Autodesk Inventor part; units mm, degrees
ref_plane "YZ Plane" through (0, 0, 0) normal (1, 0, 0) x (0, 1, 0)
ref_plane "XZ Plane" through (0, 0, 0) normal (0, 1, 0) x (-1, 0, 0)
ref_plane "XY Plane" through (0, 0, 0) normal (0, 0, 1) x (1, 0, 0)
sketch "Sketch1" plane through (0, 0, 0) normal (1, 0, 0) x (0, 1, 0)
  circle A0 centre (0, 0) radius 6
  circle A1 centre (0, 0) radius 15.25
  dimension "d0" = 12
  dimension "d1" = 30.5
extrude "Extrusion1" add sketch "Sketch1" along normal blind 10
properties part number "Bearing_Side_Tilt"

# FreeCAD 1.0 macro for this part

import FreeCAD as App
import Part
import Sketcher
from FreeCAD import Vector

doc = App.newDocument("Part")
params = doc.addObject("Spreadsheet::Sheet", "Params")
for row, (alias, value) in enumerate([
    ("sketch1_diameter", "12 mm"),
    ("sketch1_diameter2", "30.5 mm"),
    ("pad1_length", "10 mm"),
], start=1):
    params.set(f"A{row}", alias)
    params.set(f"B{row}", "=" + value)
    params.setAlias(f"B{row}", alias)

body = doc.addObject("PartDesign::Body", "Body")

# Sketch on YZ plane
sketch1 = doc.addObject("Sketcher::SketchObject", "Sketch")
body.addObject(sketch1)
sketch1.AttachmentSupport = (doc.YZ_Plane, [""])
sketch1.MapMode = "FlatFace"
sketch1.addGeometry([
    Part.Circle(Vector(0, 0, 0), Vector(0, 0, 1), 15),
    Part.Circle(Vector(0, 0, 0), Vector(0, 0, 1), 6),
], False)
sketch1.addConstraint([
    Sketcher.Constraint("Coincident", 0, 3, -1, 1),
    Sketcher.Constraint("Coincident", 1, 3, -1, 1),
    Sketcher.Constraint("Diameter", 1, 12.0),
    Sketcher.Constraint("Diameter", 0, 30.5),
])
sketch1.setExpression("Constraints[2]", "Params.sketch1_diameter")
sketch1.setExpression("Constraints[3]", "Params.sketch1_diameter2")
pad1 = doc.addObject("PartDesign::Pad", "Pad")
body.addObject(pad1)
pad1.Profile = sketch1
pad1.setExpression("Length", "Params.pad1_length")

doc.recompute()
